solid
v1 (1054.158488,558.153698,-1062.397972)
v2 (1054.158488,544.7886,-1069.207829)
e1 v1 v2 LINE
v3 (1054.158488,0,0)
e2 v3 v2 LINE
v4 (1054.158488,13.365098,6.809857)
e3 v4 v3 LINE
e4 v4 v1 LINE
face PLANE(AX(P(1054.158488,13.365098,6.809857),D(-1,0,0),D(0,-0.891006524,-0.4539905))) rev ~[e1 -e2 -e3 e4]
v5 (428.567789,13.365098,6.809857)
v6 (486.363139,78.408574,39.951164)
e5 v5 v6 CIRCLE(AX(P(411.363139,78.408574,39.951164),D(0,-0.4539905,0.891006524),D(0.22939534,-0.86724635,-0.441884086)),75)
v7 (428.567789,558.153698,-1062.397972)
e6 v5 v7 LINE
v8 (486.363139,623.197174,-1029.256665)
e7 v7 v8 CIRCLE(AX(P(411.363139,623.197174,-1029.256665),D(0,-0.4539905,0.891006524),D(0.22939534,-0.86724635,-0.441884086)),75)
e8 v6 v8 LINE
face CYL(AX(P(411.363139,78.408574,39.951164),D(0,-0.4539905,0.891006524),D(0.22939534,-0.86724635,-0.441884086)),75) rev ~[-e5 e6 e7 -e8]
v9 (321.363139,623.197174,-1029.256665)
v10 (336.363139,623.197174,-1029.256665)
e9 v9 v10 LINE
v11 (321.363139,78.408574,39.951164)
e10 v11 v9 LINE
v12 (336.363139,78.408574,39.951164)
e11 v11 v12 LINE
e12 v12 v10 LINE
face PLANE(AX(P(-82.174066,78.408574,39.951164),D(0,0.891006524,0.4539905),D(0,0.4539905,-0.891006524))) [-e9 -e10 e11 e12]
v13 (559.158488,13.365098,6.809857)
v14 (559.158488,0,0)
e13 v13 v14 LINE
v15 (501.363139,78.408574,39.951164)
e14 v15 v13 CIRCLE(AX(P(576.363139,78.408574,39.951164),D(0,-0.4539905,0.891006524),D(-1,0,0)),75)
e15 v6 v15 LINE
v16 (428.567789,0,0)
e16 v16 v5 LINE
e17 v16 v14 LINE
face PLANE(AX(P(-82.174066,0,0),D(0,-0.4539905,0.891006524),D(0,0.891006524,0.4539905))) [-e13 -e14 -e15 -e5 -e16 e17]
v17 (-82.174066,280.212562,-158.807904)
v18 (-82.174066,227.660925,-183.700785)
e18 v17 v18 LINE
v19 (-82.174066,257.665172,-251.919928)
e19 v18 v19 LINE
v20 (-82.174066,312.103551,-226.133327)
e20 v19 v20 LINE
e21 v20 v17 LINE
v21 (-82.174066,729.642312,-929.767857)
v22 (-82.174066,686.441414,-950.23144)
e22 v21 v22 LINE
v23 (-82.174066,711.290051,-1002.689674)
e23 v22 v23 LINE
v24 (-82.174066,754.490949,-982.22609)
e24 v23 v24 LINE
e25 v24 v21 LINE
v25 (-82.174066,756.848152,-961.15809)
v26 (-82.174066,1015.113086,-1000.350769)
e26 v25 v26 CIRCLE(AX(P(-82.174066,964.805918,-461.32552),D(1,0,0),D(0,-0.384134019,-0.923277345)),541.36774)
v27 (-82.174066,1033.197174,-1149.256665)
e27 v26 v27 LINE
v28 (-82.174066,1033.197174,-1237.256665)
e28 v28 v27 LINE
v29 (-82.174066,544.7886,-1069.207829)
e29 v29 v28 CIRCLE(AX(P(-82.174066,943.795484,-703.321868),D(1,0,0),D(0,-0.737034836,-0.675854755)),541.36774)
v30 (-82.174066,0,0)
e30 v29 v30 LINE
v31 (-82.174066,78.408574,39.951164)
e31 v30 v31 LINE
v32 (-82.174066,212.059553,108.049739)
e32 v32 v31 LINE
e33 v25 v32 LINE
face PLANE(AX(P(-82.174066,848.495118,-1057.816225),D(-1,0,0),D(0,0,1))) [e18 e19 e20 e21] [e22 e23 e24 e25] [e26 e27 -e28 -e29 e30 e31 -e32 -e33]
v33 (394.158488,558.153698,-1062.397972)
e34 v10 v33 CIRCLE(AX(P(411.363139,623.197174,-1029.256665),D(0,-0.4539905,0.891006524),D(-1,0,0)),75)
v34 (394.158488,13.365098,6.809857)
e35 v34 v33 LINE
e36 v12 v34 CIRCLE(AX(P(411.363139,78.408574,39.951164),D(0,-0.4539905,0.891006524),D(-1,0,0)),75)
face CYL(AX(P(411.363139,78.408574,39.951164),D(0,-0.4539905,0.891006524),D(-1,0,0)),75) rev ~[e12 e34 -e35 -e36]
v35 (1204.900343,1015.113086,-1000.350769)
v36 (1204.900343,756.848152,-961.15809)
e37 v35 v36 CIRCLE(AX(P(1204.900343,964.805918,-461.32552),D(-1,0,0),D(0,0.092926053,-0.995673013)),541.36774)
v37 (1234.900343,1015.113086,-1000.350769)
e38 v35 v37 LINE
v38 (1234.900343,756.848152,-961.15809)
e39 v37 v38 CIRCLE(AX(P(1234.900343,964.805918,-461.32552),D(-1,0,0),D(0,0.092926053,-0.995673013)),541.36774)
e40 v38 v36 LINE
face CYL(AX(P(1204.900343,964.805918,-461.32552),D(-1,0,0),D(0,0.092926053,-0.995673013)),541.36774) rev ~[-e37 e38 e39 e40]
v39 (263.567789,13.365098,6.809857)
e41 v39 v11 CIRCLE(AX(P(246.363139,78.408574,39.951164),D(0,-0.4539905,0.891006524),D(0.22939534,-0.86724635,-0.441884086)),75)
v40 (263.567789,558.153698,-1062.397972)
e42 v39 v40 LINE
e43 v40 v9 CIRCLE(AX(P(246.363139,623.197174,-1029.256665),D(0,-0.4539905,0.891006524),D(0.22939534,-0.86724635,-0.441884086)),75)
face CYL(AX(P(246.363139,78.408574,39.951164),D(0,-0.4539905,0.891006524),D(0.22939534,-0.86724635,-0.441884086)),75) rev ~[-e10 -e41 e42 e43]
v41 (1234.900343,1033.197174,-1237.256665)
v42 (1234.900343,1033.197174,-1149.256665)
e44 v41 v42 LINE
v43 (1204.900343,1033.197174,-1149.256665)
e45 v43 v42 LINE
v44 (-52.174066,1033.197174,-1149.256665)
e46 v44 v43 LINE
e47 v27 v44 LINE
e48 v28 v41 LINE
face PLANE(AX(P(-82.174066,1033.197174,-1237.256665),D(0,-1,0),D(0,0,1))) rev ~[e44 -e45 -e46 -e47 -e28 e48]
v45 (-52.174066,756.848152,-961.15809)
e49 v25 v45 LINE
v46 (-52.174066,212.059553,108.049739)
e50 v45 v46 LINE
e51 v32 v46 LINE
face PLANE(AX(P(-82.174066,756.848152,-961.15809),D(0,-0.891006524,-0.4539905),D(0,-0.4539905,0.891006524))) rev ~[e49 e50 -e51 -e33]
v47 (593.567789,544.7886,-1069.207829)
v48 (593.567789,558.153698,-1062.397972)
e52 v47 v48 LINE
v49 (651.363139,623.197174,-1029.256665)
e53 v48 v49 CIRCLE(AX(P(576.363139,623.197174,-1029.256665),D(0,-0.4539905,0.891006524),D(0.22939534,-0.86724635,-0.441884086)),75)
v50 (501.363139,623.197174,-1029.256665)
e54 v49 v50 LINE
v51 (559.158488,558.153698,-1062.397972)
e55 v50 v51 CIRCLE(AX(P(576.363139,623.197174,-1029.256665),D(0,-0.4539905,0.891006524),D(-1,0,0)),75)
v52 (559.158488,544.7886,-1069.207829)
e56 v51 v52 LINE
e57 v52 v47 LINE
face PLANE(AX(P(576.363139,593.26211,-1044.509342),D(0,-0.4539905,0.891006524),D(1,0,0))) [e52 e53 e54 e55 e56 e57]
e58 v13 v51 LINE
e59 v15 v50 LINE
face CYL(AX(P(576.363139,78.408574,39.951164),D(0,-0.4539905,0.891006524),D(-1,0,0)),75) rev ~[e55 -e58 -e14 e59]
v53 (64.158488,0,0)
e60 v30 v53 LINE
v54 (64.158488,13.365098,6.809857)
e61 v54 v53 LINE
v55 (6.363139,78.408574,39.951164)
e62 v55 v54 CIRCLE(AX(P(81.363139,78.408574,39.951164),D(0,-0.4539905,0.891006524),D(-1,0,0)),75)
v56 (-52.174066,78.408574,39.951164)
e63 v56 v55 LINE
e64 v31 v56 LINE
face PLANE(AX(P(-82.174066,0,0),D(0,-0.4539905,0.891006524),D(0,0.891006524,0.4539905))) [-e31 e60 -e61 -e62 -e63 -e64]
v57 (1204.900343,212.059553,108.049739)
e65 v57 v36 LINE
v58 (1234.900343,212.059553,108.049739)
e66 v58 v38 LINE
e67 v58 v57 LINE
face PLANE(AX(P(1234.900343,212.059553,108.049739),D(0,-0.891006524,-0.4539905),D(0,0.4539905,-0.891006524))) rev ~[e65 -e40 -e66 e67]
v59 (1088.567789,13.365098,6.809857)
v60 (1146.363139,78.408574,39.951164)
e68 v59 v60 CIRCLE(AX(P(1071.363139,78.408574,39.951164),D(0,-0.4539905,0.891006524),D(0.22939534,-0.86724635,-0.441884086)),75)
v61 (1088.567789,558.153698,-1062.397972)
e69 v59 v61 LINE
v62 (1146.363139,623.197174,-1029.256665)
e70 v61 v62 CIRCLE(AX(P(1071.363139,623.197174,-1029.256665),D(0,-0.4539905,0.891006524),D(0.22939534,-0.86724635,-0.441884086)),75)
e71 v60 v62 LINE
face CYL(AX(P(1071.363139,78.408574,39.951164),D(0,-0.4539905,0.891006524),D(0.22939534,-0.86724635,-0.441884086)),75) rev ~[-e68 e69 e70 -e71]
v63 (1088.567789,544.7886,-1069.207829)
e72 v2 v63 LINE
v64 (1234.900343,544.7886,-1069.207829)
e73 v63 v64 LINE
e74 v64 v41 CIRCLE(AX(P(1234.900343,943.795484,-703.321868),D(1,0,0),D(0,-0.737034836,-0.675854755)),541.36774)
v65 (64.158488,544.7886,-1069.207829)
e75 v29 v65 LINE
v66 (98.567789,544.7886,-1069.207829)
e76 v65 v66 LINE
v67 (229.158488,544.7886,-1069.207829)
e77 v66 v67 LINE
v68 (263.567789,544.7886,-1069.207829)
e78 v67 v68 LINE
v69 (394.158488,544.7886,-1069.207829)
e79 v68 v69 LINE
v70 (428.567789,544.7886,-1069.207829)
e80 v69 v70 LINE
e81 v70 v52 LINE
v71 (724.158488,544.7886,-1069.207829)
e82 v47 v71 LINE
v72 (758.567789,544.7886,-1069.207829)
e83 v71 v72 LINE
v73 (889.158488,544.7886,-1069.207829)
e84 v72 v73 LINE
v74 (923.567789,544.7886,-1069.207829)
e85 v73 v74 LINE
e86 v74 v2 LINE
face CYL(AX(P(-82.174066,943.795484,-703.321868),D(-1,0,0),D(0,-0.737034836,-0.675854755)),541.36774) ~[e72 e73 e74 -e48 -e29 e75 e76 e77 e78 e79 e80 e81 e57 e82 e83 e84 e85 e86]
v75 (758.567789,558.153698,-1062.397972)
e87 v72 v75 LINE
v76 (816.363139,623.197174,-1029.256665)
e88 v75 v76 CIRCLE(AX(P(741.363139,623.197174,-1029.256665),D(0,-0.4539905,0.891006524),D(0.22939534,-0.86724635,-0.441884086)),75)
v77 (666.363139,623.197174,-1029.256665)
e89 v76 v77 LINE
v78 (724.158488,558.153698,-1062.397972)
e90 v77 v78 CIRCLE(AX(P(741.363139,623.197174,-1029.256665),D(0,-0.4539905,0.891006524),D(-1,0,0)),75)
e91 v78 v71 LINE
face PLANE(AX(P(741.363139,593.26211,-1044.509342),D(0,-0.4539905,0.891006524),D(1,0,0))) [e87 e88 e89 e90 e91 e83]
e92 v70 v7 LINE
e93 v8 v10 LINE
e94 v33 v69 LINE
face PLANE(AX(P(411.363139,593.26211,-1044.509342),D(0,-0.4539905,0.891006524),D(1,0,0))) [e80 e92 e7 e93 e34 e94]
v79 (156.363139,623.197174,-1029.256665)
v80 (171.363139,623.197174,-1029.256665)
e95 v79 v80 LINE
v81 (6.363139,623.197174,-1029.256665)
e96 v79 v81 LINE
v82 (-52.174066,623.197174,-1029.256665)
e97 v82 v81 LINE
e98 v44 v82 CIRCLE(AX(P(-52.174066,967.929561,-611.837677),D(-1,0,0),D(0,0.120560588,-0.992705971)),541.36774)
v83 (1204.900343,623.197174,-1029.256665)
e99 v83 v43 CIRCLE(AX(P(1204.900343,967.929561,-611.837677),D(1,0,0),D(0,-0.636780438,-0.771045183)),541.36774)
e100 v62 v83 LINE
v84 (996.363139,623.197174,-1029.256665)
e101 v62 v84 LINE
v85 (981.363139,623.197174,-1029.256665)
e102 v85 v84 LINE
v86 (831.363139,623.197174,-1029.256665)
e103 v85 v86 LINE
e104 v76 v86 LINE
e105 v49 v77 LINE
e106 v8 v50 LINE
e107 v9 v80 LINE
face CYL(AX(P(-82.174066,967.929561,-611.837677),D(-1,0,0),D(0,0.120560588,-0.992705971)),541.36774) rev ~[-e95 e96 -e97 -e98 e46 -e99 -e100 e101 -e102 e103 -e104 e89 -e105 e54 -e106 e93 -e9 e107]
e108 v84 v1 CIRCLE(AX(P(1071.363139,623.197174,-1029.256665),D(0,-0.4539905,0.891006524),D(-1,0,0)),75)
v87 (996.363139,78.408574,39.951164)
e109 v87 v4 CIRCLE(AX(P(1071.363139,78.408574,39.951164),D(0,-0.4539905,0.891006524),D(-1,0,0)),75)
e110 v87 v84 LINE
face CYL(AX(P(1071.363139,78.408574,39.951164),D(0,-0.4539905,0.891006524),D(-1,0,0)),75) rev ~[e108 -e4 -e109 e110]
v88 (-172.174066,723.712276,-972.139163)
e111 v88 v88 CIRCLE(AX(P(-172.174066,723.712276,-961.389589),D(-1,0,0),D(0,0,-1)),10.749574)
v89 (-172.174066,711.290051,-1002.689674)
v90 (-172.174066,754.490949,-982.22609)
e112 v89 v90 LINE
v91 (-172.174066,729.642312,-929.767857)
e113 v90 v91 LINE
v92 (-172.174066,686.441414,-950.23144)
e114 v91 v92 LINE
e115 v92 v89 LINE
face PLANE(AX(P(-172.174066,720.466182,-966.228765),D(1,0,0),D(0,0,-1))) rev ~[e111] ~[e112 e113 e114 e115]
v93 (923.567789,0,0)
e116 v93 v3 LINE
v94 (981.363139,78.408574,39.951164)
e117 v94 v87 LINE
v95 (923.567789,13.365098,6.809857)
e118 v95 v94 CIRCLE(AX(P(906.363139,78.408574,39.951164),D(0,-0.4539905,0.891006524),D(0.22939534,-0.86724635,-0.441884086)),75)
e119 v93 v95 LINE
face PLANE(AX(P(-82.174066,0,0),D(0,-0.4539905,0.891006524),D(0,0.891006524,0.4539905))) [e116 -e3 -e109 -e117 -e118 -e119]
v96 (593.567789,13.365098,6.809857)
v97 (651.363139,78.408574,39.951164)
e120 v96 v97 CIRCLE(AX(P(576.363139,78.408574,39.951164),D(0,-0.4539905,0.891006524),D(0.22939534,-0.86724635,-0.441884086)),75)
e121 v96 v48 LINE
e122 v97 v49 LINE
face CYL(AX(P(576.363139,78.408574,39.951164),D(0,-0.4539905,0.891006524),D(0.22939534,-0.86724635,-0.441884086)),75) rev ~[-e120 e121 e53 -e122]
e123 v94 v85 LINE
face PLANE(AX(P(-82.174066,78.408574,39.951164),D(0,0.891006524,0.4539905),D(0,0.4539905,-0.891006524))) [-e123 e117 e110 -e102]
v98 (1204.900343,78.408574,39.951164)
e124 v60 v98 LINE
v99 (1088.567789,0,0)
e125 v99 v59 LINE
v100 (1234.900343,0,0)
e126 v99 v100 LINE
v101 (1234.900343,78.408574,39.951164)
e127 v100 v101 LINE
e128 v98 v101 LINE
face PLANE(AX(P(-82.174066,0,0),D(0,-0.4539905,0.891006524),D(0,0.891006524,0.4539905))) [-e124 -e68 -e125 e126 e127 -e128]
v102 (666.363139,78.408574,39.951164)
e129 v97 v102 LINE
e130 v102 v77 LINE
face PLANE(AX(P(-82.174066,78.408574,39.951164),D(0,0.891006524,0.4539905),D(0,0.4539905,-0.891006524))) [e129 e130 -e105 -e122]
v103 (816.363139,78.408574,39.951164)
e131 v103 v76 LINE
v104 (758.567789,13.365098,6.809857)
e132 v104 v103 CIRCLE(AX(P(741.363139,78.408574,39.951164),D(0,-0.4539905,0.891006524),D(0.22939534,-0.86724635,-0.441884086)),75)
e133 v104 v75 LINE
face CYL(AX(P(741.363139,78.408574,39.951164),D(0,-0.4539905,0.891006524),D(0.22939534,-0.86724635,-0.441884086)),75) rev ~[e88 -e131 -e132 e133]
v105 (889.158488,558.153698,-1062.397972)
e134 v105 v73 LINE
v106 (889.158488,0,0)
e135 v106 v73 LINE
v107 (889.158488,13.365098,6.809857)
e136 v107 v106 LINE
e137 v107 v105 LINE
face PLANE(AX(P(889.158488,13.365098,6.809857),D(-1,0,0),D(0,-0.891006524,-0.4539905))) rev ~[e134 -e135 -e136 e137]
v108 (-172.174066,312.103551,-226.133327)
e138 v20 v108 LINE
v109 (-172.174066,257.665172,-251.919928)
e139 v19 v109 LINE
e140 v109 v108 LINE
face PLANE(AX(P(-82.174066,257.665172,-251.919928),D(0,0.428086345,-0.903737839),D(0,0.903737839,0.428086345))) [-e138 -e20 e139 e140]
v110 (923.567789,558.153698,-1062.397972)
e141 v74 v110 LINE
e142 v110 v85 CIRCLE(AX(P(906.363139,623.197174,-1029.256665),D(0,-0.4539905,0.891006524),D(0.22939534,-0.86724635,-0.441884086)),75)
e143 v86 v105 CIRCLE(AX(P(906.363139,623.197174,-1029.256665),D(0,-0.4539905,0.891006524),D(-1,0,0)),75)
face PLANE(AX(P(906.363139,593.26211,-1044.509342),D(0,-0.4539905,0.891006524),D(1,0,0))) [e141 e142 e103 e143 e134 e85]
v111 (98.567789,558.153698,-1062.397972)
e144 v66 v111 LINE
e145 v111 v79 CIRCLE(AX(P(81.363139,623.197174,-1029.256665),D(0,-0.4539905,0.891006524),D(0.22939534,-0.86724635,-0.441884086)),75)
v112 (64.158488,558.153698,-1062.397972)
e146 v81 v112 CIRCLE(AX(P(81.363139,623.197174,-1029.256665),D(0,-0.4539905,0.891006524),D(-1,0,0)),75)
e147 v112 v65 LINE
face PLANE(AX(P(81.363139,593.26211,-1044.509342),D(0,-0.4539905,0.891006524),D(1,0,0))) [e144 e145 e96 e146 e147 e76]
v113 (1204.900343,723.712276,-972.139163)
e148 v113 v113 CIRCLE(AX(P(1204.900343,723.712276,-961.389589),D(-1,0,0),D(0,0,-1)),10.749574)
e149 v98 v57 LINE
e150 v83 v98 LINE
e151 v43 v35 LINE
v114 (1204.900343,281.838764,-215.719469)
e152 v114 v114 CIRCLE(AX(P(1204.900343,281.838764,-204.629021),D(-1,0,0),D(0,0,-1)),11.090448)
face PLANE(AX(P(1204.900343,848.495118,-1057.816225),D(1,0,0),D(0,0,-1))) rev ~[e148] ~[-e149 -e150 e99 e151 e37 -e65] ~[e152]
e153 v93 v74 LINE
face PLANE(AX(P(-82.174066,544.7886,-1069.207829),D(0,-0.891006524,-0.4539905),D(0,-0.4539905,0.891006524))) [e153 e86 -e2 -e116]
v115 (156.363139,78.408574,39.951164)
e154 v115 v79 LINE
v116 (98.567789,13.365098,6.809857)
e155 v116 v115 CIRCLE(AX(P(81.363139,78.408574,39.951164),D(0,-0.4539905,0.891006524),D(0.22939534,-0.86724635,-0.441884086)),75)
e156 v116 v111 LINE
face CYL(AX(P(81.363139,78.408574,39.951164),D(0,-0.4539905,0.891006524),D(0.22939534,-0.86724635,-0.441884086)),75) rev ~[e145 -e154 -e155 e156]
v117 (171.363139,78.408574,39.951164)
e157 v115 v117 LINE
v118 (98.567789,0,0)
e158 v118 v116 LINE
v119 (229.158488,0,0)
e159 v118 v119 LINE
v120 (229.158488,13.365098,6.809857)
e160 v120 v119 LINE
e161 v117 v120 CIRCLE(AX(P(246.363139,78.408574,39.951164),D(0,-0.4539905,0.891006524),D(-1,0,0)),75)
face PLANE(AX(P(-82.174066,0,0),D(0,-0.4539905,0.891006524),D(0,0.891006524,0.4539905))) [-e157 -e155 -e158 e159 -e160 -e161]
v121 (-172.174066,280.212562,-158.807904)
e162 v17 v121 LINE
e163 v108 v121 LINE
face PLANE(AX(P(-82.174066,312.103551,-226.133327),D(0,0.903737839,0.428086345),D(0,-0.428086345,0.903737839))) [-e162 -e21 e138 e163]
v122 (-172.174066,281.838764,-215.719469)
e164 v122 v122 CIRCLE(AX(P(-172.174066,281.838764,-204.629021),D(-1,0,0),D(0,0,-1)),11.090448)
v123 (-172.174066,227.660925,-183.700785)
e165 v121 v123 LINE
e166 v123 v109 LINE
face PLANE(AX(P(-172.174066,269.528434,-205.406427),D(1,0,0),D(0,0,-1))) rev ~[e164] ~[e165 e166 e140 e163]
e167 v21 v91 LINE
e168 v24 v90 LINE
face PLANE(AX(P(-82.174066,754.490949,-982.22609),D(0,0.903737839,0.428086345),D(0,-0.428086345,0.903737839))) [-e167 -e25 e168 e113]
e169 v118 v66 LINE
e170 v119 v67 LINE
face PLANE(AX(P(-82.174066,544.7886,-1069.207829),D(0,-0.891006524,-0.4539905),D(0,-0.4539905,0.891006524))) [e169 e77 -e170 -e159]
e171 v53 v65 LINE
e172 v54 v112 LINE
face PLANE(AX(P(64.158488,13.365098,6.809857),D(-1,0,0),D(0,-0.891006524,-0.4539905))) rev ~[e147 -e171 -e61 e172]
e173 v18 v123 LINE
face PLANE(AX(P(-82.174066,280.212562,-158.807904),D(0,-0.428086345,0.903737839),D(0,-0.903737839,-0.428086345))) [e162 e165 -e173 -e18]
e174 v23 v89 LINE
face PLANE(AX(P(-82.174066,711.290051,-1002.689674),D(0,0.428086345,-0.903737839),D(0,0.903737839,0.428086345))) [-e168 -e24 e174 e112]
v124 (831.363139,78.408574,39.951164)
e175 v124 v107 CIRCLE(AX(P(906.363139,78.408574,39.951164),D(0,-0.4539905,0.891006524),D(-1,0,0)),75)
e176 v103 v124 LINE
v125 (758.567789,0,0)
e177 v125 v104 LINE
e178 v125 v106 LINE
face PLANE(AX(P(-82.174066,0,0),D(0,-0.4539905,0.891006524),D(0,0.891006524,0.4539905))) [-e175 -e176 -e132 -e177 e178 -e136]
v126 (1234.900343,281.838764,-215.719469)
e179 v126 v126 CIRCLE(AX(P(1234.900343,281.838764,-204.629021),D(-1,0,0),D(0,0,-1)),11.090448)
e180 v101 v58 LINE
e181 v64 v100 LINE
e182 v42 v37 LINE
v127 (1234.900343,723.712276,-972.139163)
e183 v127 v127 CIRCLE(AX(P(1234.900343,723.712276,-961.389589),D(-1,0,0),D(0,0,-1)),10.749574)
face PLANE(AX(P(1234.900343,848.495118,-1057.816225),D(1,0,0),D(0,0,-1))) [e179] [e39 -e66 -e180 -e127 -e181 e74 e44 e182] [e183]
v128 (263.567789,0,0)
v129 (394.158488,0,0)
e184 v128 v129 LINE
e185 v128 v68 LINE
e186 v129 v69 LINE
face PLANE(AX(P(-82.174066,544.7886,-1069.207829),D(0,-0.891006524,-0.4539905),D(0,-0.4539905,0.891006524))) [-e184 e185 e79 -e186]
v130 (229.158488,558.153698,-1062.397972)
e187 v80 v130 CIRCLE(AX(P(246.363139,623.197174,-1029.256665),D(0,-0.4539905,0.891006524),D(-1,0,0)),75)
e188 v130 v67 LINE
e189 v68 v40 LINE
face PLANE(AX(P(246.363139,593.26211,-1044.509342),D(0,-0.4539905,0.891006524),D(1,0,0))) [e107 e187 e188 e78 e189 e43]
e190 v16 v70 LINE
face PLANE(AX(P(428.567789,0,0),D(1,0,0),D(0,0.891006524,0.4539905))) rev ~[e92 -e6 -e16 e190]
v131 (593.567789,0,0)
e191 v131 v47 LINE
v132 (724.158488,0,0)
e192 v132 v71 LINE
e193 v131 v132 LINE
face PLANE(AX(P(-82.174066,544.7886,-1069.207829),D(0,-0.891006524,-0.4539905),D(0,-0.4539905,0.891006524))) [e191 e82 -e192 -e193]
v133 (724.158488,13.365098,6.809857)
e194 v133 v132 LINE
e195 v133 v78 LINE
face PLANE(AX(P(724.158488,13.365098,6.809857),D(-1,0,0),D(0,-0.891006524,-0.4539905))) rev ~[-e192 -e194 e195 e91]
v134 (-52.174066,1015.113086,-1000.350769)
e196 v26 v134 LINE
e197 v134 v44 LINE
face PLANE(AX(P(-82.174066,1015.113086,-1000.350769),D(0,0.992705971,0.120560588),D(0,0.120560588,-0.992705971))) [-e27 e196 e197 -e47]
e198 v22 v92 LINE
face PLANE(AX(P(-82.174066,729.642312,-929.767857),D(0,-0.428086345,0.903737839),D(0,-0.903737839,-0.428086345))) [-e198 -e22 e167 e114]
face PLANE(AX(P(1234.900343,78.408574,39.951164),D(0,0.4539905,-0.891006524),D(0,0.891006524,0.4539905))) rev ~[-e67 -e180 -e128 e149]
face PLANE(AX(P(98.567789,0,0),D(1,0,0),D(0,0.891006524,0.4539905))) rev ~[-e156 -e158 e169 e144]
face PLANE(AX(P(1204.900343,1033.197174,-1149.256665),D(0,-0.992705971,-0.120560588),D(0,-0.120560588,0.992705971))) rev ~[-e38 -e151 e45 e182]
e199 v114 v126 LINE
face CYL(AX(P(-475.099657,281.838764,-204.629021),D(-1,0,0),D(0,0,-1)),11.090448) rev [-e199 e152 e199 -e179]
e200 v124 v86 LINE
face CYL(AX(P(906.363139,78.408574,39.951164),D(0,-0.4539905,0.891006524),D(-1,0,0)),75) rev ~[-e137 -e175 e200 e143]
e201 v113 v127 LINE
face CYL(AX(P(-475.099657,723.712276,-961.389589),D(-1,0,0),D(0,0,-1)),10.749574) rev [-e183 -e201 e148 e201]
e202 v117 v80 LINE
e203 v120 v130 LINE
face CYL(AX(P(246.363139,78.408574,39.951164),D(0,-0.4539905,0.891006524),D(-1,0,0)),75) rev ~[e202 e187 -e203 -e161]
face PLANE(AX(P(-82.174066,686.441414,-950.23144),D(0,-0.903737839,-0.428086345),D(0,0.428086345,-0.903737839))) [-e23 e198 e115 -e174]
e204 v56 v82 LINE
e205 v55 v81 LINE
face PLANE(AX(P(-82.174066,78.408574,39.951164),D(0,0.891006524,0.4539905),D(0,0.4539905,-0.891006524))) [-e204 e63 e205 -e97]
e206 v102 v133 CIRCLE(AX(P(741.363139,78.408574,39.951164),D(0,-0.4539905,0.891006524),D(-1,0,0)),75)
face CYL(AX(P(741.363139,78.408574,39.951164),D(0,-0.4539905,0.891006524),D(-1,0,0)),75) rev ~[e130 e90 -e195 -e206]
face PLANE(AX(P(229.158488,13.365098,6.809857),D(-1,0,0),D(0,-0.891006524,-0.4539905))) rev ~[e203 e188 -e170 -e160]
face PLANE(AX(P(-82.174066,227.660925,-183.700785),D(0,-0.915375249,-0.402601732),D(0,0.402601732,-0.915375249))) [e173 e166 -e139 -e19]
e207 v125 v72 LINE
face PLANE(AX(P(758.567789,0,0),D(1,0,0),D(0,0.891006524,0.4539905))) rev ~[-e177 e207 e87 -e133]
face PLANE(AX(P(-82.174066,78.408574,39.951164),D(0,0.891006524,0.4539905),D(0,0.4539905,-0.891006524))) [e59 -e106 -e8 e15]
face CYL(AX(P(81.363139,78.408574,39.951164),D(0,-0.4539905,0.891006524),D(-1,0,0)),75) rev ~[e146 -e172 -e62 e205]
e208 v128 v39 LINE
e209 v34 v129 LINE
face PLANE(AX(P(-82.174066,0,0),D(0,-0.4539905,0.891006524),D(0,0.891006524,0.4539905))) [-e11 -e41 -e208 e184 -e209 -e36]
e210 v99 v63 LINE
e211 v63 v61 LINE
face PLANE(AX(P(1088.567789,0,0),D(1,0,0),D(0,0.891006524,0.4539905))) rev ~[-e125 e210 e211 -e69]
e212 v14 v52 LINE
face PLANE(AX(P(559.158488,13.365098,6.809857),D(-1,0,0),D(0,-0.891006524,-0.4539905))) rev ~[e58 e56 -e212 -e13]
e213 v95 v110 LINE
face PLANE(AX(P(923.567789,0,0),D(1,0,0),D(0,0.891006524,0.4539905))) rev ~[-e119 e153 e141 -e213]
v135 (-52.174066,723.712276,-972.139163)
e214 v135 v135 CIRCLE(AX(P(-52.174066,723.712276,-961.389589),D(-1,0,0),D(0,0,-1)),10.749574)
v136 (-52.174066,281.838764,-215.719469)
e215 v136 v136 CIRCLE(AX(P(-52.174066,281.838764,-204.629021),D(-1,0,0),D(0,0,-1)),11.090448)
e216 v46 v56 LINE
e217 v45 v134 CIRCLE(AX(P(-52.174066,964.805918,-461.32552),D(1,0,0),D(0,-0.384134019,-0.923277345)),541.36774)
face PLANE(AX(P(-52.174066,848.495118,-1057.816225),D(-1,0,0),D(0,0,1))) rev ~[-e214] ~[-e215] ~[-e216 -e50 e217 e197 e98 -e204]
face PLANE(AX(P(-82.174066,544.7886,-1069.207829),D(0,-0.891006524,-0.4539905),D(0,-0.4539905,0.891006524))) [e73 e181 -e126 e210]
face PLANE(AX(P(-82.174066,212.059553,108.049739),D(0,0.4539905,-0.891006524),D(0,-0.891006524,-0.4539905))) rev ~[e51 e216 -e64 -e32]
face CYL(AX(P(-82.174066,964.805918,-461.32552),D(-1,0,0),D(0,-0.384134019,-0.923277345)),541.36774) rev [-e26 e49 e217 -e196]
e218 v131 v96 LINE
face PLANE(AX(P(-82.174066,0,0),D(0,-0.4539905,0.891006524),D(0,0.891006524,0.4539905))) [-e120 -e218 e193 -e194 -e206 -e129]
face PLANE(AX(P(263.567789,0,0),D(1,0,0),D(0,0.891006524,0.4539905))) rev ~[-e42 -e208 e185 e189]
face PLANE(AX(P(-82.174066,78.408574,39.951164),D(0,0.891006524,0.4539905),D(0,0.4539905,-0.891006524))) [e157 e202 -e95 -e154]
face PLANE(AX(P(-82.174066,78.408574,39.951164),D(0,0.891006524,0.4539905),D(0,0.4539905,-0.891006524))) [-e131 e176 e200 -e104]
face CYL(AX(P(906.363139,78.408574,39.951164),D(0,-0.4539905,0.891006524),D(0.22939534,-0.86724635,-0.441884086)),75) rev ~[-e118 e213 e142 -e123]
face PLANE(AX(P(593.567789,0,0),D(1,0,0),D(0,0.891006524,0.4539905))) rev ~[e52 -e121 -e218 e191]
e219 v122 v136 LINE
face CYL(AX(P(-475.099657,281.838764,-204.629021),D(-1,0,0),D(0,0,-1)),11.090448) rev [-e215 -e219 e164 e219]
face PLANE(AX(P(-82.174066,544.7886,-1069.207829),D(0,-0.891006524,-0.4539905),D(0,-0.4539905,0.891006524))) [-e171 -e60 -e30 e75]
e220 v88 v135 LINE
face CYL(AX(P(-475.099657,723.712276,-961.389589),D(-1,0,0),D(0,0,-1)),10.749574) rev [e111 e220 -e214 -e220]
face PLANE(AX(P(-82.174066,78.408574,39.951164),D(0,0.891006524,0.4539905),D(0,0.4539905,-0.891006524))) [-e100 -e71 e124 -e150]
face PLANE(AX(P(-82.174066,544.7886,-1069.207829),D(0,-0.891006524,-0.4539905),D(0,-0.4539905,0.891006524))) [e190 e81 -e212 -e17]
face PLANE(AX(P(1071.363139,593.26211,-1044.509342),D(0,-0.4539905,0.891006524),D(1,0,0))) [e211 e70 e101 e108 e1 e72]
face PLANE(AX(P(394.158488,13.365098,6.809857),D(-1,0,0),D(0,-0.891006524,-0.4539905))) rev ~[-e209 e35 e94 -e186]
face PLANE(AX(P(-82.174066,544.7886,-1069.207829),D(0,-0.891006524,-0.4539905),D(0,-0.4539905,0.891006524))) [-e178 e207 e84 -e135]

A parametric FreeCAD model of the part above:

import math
import FreeCAD as App
import Part
import Sketcher
Q = App.Units.Quantity

doc = App.newDocument("Part")
body = doc.addObject("PartDesign::Body", "Body")

# Sketch on YZ plane
sketch1 = body.newObject("Sketcher::SketchObject", "Sketch")
sketch1.AttachmentSupport = (doc.getObject("YZ_Plane"), [""])
sketch1.MapMode = "FlatFace"
sketch1.addGeometry([
    Part.LineSegment(App.Vector(0, 0, 0), App.Vector(545, -1069, 0)),  # 0
    Part.ArcOfCircle(Part.Circle(App.Vector(944, -703, 0), App.Vector(0, 0, 1), 541), math.radians(-137), math.radians(-80)),  # 1
    Part.LineSegment(App.Vector(1033, -1237, 0), App.Vector(1033, -1149, 0)),  # 2
    Part.ArcOfCircle(Part.Circle(App.Vector(968, -612, 0), App.Vector(0, 0, 1), 541), math.radians(-130), math.radians(-83)),  # 3
    Part.LineSegment(App.Vector(623, -1029, 0), App.Vector(78, 40, 0)),  # 4
    Part.LineSegment(App.Vector(78, 40, 0), App.Vector(0, 0, 0)),  # 5
], False)
sketch1.addConstraint([
    Sketcher.Constraint("Coincident", 0, 2, 1, 1),
    Sketcher.Constraint("Coincident", 1, 2, 2, 1),
    Sketcher.Constraint("Coincident", 2, 2, 3, 2),
    Sketcher.Constraint("Coincident", 3, 1, 4, 1),
    Sketcher.Constraint("Coincident", 4, 2, 5, 1),
    Sketcher.Constraint("Coincident", 5, 2, 0, 1),
    Sketcher.Constraint("Vertical", 2),
    Sketcher.Constraint("Coincident", 5, 2, -1, 1),
    Sketcher.Constraint("Equal", 1, 3),
    Sketcher.Constraint("Parallel", 0, 4),
    Sketcher.Constraint("Perpendicular", 4, 5),
    Sketcher.Constraint("Equal", 0, 4),
    Sketcher.Constraint("DistanceY", 2, 1, 2, 2, 88.0),
    Sketcher.Constraint("Angle", 0, Q("-63 deg")),
    Sketcher.Constraint("Distance", 0, 1200.0),
    Sketcher.Constraint("Distance", 5, 88.0),
    Sketcher.Constraint("Radius", 1, 541.36774),
    Sketcher.Constraint("DistanceX", 4, 2, 2, 2, 954.7886),
    Sketcher.Constraint("DistanceX", -1, 1, 3, 3, 967.929561),
])
pad1 = body.newObject("PartDesign::Pad", "Pad")
pad1.Profile = sketch1
pad1.Type = "TwoLengths"
pad1.Length = 1234.900343
pad1.Length2 = 82.174066

# Sketch on an angled plane
sketch2 = body.newObject("Sketcher::SketchObject", "Sketch001")
sketch2.Placement = App.Placement(App.Vector(0, 0, 0), App.Rotation(App.Vector(1, 0, 0), App.Vector(0, 0.891006524, 0.4539905), App.Vector(0, -0.4539905, 0.891006524), "ZXY"))
sketch2.addGeometry([
    Part.ArcOfCircle(Part.Circle(App.Vector(81, 88, 0), App.Vector(0, 0, 1), 75), math.radians(-77), math.radians(0)),  # 0
    Part.LineSegment(App.Vector(156, 88, 0), App.Vector(6, 88, 0)),  # 1
    Part.ArcOfCircle(Part.Circle(App.Vector(81, 88, 0), App.Vector(0, 0, 1), 75), math.radians(-180), math.radians(-103)),  # 2
    Part.LineSegment(App.Vector(64, 15, 0), App.Vector(64, 0, 0)),  # 3
    Part.LineSegment(App.Vector(64, 0, 0), App.Vector(99, 0, 0)),  # 4
    Part.LineSegment(App.Vector(99, 0, 0), App.Vector(99, 15, 0)),  # 5
    Part.ArcOfCircle(Part.Circle(App.Vector(246, 88, 0), App.Vector(0, 0, 1), 75), math.radians(-77), math.radians(0)),  # 6
    Part.LineSegment(App.Vector(321, 88, 0), App.Vector(171, 88, 0)),  # 7
    Part.ArcOfCircle(Part.Circle(App.Vector(246, 88, 0), App.Vector(0, 0, 1), 75), math.radians(-180), math.radians(-103)),  # 8
    Part.LineSegment(App.Vector(229, 15, 0), App.Vector(229, 0, 0)),  # 9
    Part.LineSegment(App.Vector(229, 0, 0), App.Vector(264, 0, 0)),  # 10
    Part.LineSegment(App.Vector(264, 0, 0), App.Vector(264, 15, 0)),  # 11
    Part.ArcOfCircle(Part.Circle(App.Vector(411, 88, 0), App.Vector(0, 0, 1), 75), math.radians(-77), math.radians(0)),  # 12
    Part.LineSegment(App.Vector(486, 88, 0), App.Vector(336, 88, 0)),  # 13
    Part.ArcOfCircle(Part.Circle(App.Vector(411, 88, 0), App.Vector(0, 0, 1), 75), math.radians(-180), math.radians(-103)),  # 14
    Part.LineSegment(App.Vector(394, 15, 0), App.Vector(394, 0, 0)),  # 15
    Part.LineSegment(App.Vector(394, 0, 0), App.Vector(429, 0, 0)),  # 16
    Part.LineSegment(App.Vector(429, 0, 0), App.Vector(429, 15, 0)),  # 17
    Part.LineSegment(App.Vector(651, 88, 0), App.Vector(501, 88, 0)),  # 18
    Part.ArcOfCircle(Part.Circle(App.Vector(576, 88, 0), App.Vector(0, 0, 1), 75), math.radians(-180), math.radians(-103)),  # 19
    Part.LineSegment(App.Vector(559, 15, 0), App.Vector(559, 0, 0)),  # 20
    Part.LineSegment(App.Vector(559, 0, 0), App.Vector(594, 0, 0)),  # 21
    Part.LineSegment(App.Vector(594, 0, 0), App.Vector(594, 15, 0)),  # 22
    Part.ArcOfCircle(Part.Circle(App.Vector(576, 88, 0), App.Vector(0, 0, 1), 75), math.radians(-77), math.radians(0)),  # 23
    Part.LineSegment(App.Vector(816, 88, 0), App.Vector(666, 88, 0)),  # 24
    Part.ArcOfCircle(Part.Circle(App.Vector(741, 88, 0), App.Vector(0, 0, 1), 75), math.radians(-180), math.radians(-103)),  # 25
    Part.LineSegment(App.Vector(724, 15, 0), App.Vector(724, 0, 0)),  # 26
    Part.LineSegment(App.Vector(724, 0, 0), App.Vector(759, 0, 0)),  # 27
    Part.LineSegment(App.Vector(759, 0, 0), App.Vector(759, 15, 0)),  # 28
    Part.ArcOfCircle(Part.Circle(App.Vector(741, 88, 0), App.Vector(0, 0, 1), 75), math.radians(-77), math.radians(0)),  # 29
    Part.LineSegment(App.Vector(981, 88, 0), App.Vector(831, 88, 0)),  # 30
    Part.ArcOfCircle(Part.Circle(App.Vector(906, 88, 0), App.Vector(0, 0, 1), 75), math.radians(-180), math.radians(-103)),  # 31
    Part.LineSegment(App.Vector(889, 15, 0), App.Vector(889, 0, 0)),  # 32
    Part.LineSegment(App.Vector(889, 0, 0), App.Vector(924, 0, 0)),  # 33
    Part.LineSegment(App.Vector(924, 0, 0), App.Vector(924, 15, 0)),  # 34
    Part.ArcOfCircle(Part.Circle(App.Vector(906, 88, 0), App.Vector(0, 0, 1), 75), math.radians(-77), math.radians(0)),  # 35
    Part.LineSegment(App.Vector(1146, 88, 0), App.Vector(996, 88, 0)),  # 36
    Part.ArcOfCircle(Part.Circle(App.Vector(1071, 88, 0), App.Vector(0, 0, 1), 75), math.radians(-180), math.radians(-103)),  # 37
    Part.LineSegment(App.Vector(1054, 15, 0), App.Vector(1054, 0, 0)),  # 38
    Part.LineSegment(App.Vector(1054, 0, 0), App.Vector(1089, 0, 0)),  # 39
    Part.LineSegment(App.Vector(1089, 0, 0), App.Vector(1089, 15, 0)),  # 40
    Part.ArcOfCircle(Part.Circle(App.Vector(1071, 88, 0), App.Vector(0, 0, 1), 75), math.radians(-77), math.radians(0)),  # 41
], False)
sketch2.addConstraint([
    Sketcher.Constraint("Coincident", 0, 2, 1, 1),
    Sketcher.Constraint("Coincident", 1, 2, 2, 1),
    Sketcher.Constraint("Coincident", 2, 2, 3, 1),
    Sketcher.Constraint("Coincident", 3, 2, 4, 1),
    Sketcher.Constraint("Coincident", 4, 2, 5, 1),
    Sketcher.Constraint("Coincident", 5, 2, 0, 1),
    Sketcher.Constraint("Coincident", 6, 2, 7, 1),
    Sketcher.Constraint("Coincident", 7, 2, 8, 1),
    Sketcher.Constraint("Coincident", 8, 2, 9, 1),
    Sketcher.Constraint("Coincident", 9, 2, 10, 1),
    Sketcher.Constraint("Coincident", 10, 2, 11, 1),
    Sketcher.Constraint("Coincident", 11, 2, 6, 1),
    Sketcher.Constraint("Coincident", 12, 2, 13, 1),
    Sketcher.Constraint("Coincident", 13, 2, 14, 1),
    Sketcher.Constraint("Coincident", 14, 2, 15, 1),
    Sketcher.Constraint("Coincident", 15, 2, 16, 1),
    Sketcher.Constraint("Coincident", 16, 2, 17, 1),
    Sketcher.Constraint("Coincident", 17, 2, 12, 1),
    Sketcher.Constraint("Coincident", 18, 2, 19, 1),
    Sketcher.Constraint("Coincident", 19, 2, 20, 1),
    Sketcher.Constraint("Coincident", 20, 2, 21, 1),
    Sketcher.Constraint("Coincident", 21, 2, 22, 1),
    Sketcher.Constraint("Coincident", 22, 2, 23, 1),
    Sketcher.Constraint("Coincident", 23, 2, 18, 1),
    Sketcher.Constraint("Coincident", 24, 2, 25, 1),
    Sketcher.Constraint("Coincident", 25, 2, 26, 1),
    Sketcher.Constraint("Coincident", 26, 2, 27, 1),
    Sketcher.Constraint("Coincident", 27, 2, 28, 1),
    Sketcher.Constraint("Coincident", 28, 2, 29, 1),
    Sketcher.Constraint("Coincident", 29, 2, 24, 1),
    Sketcher.Constraint("Coincident", 30, 2, 31, 1),
    Sketcher.Constraint("Coincident", 31, 2, 32, 1),
    Sketcher.Constraint("Coincident", 32, 2, 33, 1),
    Sketcher.Constraint("Coincident", 33, 2, 34, 1),
    Sketcher.Constraint("Coincident", 34, 2, 35, 1),
    Sketcher.Constraint("Coincident", 35, 2, 30, 1),
    Sketcher.Constraint("Coincident", 36, 2, 37, 1),
    Sketcher.Constraint("Coincident", 37, 2, 38, 1),
    Sketcher.Constraint("Coincident", 38, 2, 39, 1),
    Sketcher.Constraint("Coincident", 39, 2, 40, 1),
    Sketcher.Constraint("Coincident", 40, 2, 41, 1),
    Sketcher.Constraint("Coincident", 41, 2, 36, 1),
    Sketcher.Constraint("Horizontal", 1),
    Sketcher.Constraint("Vertical", 3),
    Sketcher.Constraint("Horizontal", 4),
    Sketcher.Constraint("Vertical", 5),
    Sketcher.Constraint("Horizontal", 7),
    Sketcher.Constraint("Vertical", 9),
    Sketcher.Constraint("Horizontal", 10),
    Sketcher.Constraint("Vertical", 11),
    Sketcher.Constraint("Horizontal", 13),
    Sketcher.Constraint("Vertical", 15),
    Sketcher.Constraint("Horizontal", 16),
    Sketcher.Constraint("Vertical", 17),
    Sketcher.Constraint("Horizontal", 18),
    Sketcher.Constraint("Vertical", 20),
    Sketcher.Constraint("Horizontal", 21),
    Sketcher.Constraint("Vertical", 22),
    Sketcher.Constraint("Horizontal", 24),
    Sketcher.Constraint("Vertical", 26),
    Sketcher.Constraint("Horizontal", 27),
    Sketcher.Constraint("Vertical", 28),
    Sketcher.Constraint("Horizontal", 30),
    Sketcher.Constraint("Vertical", 32),
    Sketcher.Constraint("Horizontal", 33),
    Sketcher.Constraint("Vertical", 34),
    Sketcher.Constraint("Horizontal", 36),
    Sketcher.Constraint("Vertical", 38),
    Sketcher.Constraint("Horizontal", 39),
    Sketcher.Constraint("Vertical", 40),
    Sketcher.Constraint("Coincident", 2, 3, 0, 3),
    Sketcher.Constraint("Coincident", 8, 3, 6, 3),
    Sketcher.Constraint("Coincident", 14, 3, 12, 3),
    Sketcher.Constraint("Coincident", 23, 3, 19, 3),
    Sketcher.Constraint("Coincident", 29, 3, 25, 3),
    Sketcher.Constraint("Coincident", 35, 3, 31, 3),
    Sketcher.Constraint("Coincident", 41, 3, 37, 3),
    Sketcher.Constraint("Equal", 0, 2),
    Sketcher.Constraint("Equal", 2, 6),
    Sketcher.Constraint("Equal", 6, 8),
    Sketcher.Constraint("Equal", 8, 12),
    Sketcher.Constraint("Equal", 12, 14),
    Sketcher.Constraint("Equal", 14, 19),
    Sketcher.Constraint("Equal", 19, 23),
    Sketcher.Constraint("Equal", 23, 25),
    Sketcher.Constraint("Equal", 25, 29),
    Sketcher.Constraint("Equal", 29, 31),
    Sketcher.Constraint("Equal", 31, 35),
    Sketcher.Constraint("Equal", 35, 37),
    Sketcher.Constraint("Equal", 37, 41),
    Sketcher.Constraint("PointOnObject", 3, 2, -1),
    Sketcher.Constraint("PointOnObject", 9, 2, -1),
    Sketcher.Constraint("PointOnObject", 15, 2, -1),
    Sketcher.Constraint("PointOnObject", 20, 2, -1),
    Sketcher.Constraint("PointOnObject", 26, 2, -1),
    Sketcher.Constraint("PointOnObject", 32, 2, -1),
    Sketcher.Constraint("PointOnObject", 38, 2, -1),
    Sketcher.Constraint("Horizontal", 2, 3, 6, 3),
    Sketcher.Constraint("Horizontal", 8, 3, 12, 3),
    Sketcher.Constraint("Horizontal", 14, 3, 19, 3),
    Sketcher.Constraint("Horizontal", 23, 3, 25, 3),
    Sketcher.Constraint("Horizontal", 29, 3, 31, 3),
    Sketcher.Constraint("Horizontal", 35, 3, 37, 3),
    Sketcher.Constraint("Horizontal", 41, 3, 0, 2),
    Sketcher.Constraint("Horizontal", 2, 2, 5, 2),
    Sketcher.Constraint("Horizontal", 1, 2, 6, 2),
    Sketcher.Constraint("Horizontal", 5, 2, 8, 2),
    Sketcher.Constraint("Horizontal", 8, 2, 11, 2),
    Sketcher.Constraint("Horizontal", 7, 2, 12, 2),
    Sketcher.Constraint("Horizontal", 11, 2, 14, 2),
    Sketcher.Constraint("Horizontal", 14, 2, 17, 2),
    Sketcher.Constraint("Horizontal", 13, 2, 18, 2),
    Sketcher.Constraint("Horizontal", 17, 2, 19, 2),
    Sketcher.Constraint("Horizontal", 19, 2, 22, 2),
    Sketcher.Constraint("Horizontal", 23, 2, 24, 2),
    Sketcher.Constraint("Horizontal", 22, 2, 25, 2),
    Sketcher.Constraint("Horizontal", 25, 2, 28, 2),
    Sketcher.Constraint("Horizontal", 29, 2, 30, 2),
    Sketcher.Constraint("Horizontal", 28, 2, 31, 2),
    Sketcher.Constraint("Horizontal", 31, 2, 34, 2),
    Sketcher.Constraint("Horizontal", 35, 2, 36, 2),
    Sketcher.Constraint("Horizontal", 34, 2, 37, 2),
    Sketcher.Constraint("Horizontal", 37, 2, 40, 2),
    Sketcher.Constraint("Radius", 0, 75.0),
    Sketcher.Constraint("DistanceY", 3, 2, 3, 1, 15.0),
    Sketcher.Constraint("DistanceY", -1, 1, 0, 3, 88.0),
    Sketcher.Constraint("DistanceX", 2, 3, 6, 3, 165.0),
    Sketcher.Constraint("DistanceX", 8, 3, 12, 3, 165.0),
    Sketcher.Constraint("DistanceX", 14, 3, 19, 3, 165.0),
    Sketcher.Constraint("DistanceX", 19, 3, 25, 3, 165.0),
    Sketcher.Constraint("DistanceX", 25, 3, 31, 3, 165.0),
    Sketcher.Constraint("DistanceX", 31, 3, 37, 3, 165.0),
    Sketcher.Constraint("DistanceX", -1, 1, 0, 3, 81.363139),
])
pocket1 = body.newObject("PartDesign::Pocket", "Pocket")
pocket1.Profile = sketch2
pocket1.Length = 1200

# Sketch on YZ plane
sketch3 = body.newObject("Sketcher::SketchObject", "Sketch002")
sketch3.AttachmentSupport = (doc.getObject("YZ_Plane"), [""])
sketch3.MapMode = "FlatFace"
sketch3.AttachmentOffset = App.Placement(App.Vector(0, 0, 1234.900343), App.Rotation())
sketch3.addGeometry([
    Part.LineSegment(App.Vector(212, 108, 0), App.Vector(78, 40, 0)),
    Part.LineSegment(App.Vector(78, 40, 0), App.Vector(623, -1029, 0)),
    Part.LineSegment(App.Vector(623, -1029, 0), App.Vector(757, -961, 0)),
    Part.LineSegment(App.Vector(757, -961, 0), App.Vector(212, 108, 0)),
], False)
sketch3.addConstraint([
    Sketcher.Constraint("Coincident", 0, 2, 1, 1),
    Sketcher.Constraint("Coincident", 1, 2, 2, 1),
    Sketcher.Constraint("Coincident", 2, 2, 3, 1),
    Sketcher.Constraint("Coincident", 3, 2, 0, 1),
    Sketcher.Constraint("Perpendicular", 0, 1),
    Sketcher.Constraint("Perpendicular", 1, 2),
    Sketcher.Constraint("Perpendicular", 2, 3),
    Sketcher.Constraint("Angle", 0, Q("-153 deg")),
    Sketcher.Constraint("Distance", 0, 150.0),
    Sketcher.Constraint("Distance", 1, 1200.0),
    Sketcher.Constraint("DistanceY", 2, 2, -1, 1, 961.15809),
    Sketcher.Constraint("DistanceX", -1, 1, 0, 2, 78.408574),
])
pad2 = body.newObject("PartDesign::Pad", "Pad001")
pad2.Profile = sketch3
pad2.Length = 30
pad2.Reversed = True

# Sketch on YZ plane
sketch4 = body.newObject("Sketcher::SketchObject", "Sketch003")
sketch4.AttachmentSupport = (doc.getObject("YZ_Plane"), [""])
sketch4.MapMode = "FlatFace"
sketch4.AttachmentOffset = App.Placement(App.Vector(0, 0, -82.174066), App.Rotation())
sketch4.addGeometry([
    Part.LineSegment(App.Vector(757, -961, 0), App.Vector(623, -1029, 0)),
    Part.LineSegment(App.Vector(623, -1029, 0), App.Vector(78, 40, 0)),
    Part.LineSegment(App.Vector(78, 40, 0), App.Vector(212, 108, 0)),
    Part.LineSegment(App.Vector(212, 108, 0), App.Vector(757, -961, 0)),
], False)
sketch4.addConstraint([
    Sketcher.Constraint("Coincident", 0, 2, 1, 1),
    Sketcher.Constraint("Coincident", 1, 2, 2, 1),
    Sketcher.Constraint("Coincident", 2, 2, 3, 1),
    Sketcher.Constraint("Coincident", 3, 2, 0, 1),
    Sketcher.Constraint("Perpendicular", 0, 1),
    Sketcher.Constraint("Perpendicular", 1, 2),
    Sketcher.Constraint("Perpendicular", 2, 3),
    Sketcher.Constraint("Angle", 0, Q("-153 deg")),
    Sketcher.Constraint("Distance", 0, 150.0),
    Sketcher.Constraint("Distance", 1, 1200.0),
    Sketcher.Constraint("DistanceY", -1, 1, 2, 2, 108.049739),
    Sketcher.Constraint("DistanceX", -1, 1, 0, 2, 623.197174),
])
pad3 = body.newObject("PartDesign::Pad", "Pad002")
pad3.Profile = sketch4
pad3.Length = 30

# Sketch on YZ plane
sketch5 = body.newObject("Sketcher::SketchObject", "Sketch004")
sketch5.AttachmentSupport = (doc.getObject("YZ_Plane"), [""])
sketch5.MapMode = "FlatFace"
sketch5.AttachmentOffset = App.Placement(App.Vector(0, 0, 1204.900343), App.Rotation())
sketch5.addGeometry([
    Part.LineSegment(App.Vector(1033, -1149, 0), App.Vector(1015, -1000, 0)),
    Part.ArcOfCircle(Part.Circle(App.Vector(965, -461, 0), App.Vector(0, 0, 1), 541), math.radians(-113), math.radians(-85)),
    Part.LineSegment(App.Vector(757, -961, 0), App.Vector(623, -1029, 0)),
    Part.ArcOfCircle(Part.Circle(App.Vector(968, -612, 0), App.Vector(0, 0, 1), 541), math.radians(-130), math.radians(-83)),
], False)
sketch5.addConstraint([
    Sketcher.Constraint("Coincident", 0, 2, 1, 2),
    Sketcher.Constraint("Coincident", 1, 1, 2, 1),
    Sketcher.Constraint("Coincident", 2, 2, 3, 1),
    Sketcher.Constraint("Coincident", 3, 2, 0, 1),
    Sketcher.Constraint("Equal", 1, 3),
    Sketcher.Constraint("Equal", 0, 2),
    Sketcher.Constraint("Angle", 2, Q("-153 deg")),
    Sketcher.Constraint("Distance", 0, 150.0),
    Sketcher.Constraint("DistanceX", 2, 2, 3, 2, 410.0),
    Sketcher.Constraint("DistanceY", 3, 2, 2, 2, 120.0),
    Sketcher.Constraint("Radius", 1, 541.36774),
    Sketcher.Constraint("DistanceX", -1, 1, 1, 3, 964.805918),
    Sketcher.Constraint("DistanceY", 1, 3, -1, 1, 461.32552),
    Sketcher.Constraint("DistanceX", -1, 1, 3, 3, 967.929561),
])
pad4 = body.newObject("PartDesign::Pad", "Pad003")
pad4.Profile = sketch5
pad4.Length = 30

# Sketch on YZ plane
sketch6 = body.newObject("Sketcher::SketchObject", "Sketch005")
sketch6.AttachmentSupport = (doc.getObject("YZ_Plane"), [""])
sketch6.MapMode = "FlatFace"
sketch6.AttachmentOffset = App.Placement(App.Vector(0, 0, -82.174066), App.Rotation())
sketch6.addGeometry([
    Part.LineSegment(App.Vector(623, -1029, 0), App.Vector(757, -961, 0)),
    Part.ArcOfCircle(Part.Circle(App.Vector(965, -461, 0), App.Vector(0, 0, 1), 541), math.radians(-113), math.radians(-85)),
    Part.LineSegment(App.Vector(1015, -1000, 0), App.Vector(1033, -1149, 0)),
    Part.ArcOfCircle(Part.Circle(App.Vector(968, -612, 0), App.Vector(0, 0, 1), 541), math.radians(-130), math.radians(-83)),
], False)
sketch6.addConstraint([
    Sketcher.Constraint("Coincident", 0, 2, 1, 1),
    Sketcher.Constraint("Coincident", 1, 2, 2, 1),
    Sketcher.Constraint("Coincident", 2, 2, 3, 2),
    Sketcher.Constraint("Coincident", 3, 1, 0, 1),
    Sketcher.Constraint("Equal", 1, 3),
    Sketcher.Constraint("Equal", 0, 2),
    Sketcher.Constraint("Angle", 0, Q("27 deg")),
    Sketcher.Constraint("Distance", 0, 150.0),
    Sketcher.Constraint("DistanceX", 3, 1, 2, 2, 410.0),
    Sketcher.Constraint("Radius", 1, 541.36774),
    Sketcher.Constraint("DistanceX", -1, 1, 1, 3, 964.805918),
    Sketcher.Constraint("DistanceY", 1, 3, -1, 1, 461.32552),
    Sketcher.Constraint("DistanceX", -1, 1, 3, 3, 967.929561),
    Sketcher.Constraint("DistanceY", 0, 2, -1, 1, 961.15809),
])
pad5 = body.newObject("PartDesign::Pad", "Pad004")
pad5.Profile = sketch6
pad5.Length = 30

# Sketch on YZ plane
sketch7 = body.newObject("Sketcher::SketchObject", "Sketch006")
sketch7.AttachmentSupport = (doc.getObject("YZ_Plane"), [""])
sketch7.MapMode = "FlatFace"
sketch7.AttachmentOffset = App.Placement(App.Vector(0, 0, -82.174066), App.Rotation())
sketch7.addGeometry([
    Part.LineSegment(App.Vector(730, -930, 0), App.Vector(754, -982, 0)),  # 0
    Part.LineSegment(App.Vector(754, -982, 0), App.Vector(711, -1003, 0)),  # 1
    Part.LineSegment(App.Vector(711, -1003, 0), App.Vector(686, -950, 0)),  # 2
    Part.LineSegment(App.Vector(686, -950, 0), App.Vector(730, -930, 0)),  # 3
    Part.LineSegment(App.Vector(280, -159, 0), App.Vector(312, -226, 0)),  # 4
    Part.LineSegment(App.Vector(312, -226, 0), App.Vector(258, -252, 0)),  # 5
    Part.LineSegment(App.Vector(258, -252, 0), App.Vector(228, -184, 0)),  # 6
    Part.LineSegment(App.Vector(228, -184, 0), App.Vector(280, -159, 0)),  # 7
], False)
sketch7.addConstraint([
    Sketcher.Constraint("Coincident", 0, 2, 1, 1),
    Sketcher.Constraint("Coincident", 1, 2, 2, 1),
    Sketcher.Constraint("Coincident", 2, 2, 3, 1),
    Sketcher.Constraint("Coincident", 3, 2, 0, 1),
    Sketcher.Constraint("Coincident", 4, 2, 5, 1),
    Sketcher.Constraint("Coincident", 5, 2, 6, 1),
    Sketcher.Constraint("Coincident", 6, 2, 7, 1),
    Sketcher.Constraint("Coincident", 7, 2, 4, 1),
    Sketcher.Constraint("Perpendicular", 0, 1),
    Sketcher.Constraint("Perpendicular", 1, 2),
    Sketcher.Constraint("Perpendicular", 2, 3),
    Sketcher.Constraint("Perpendicular", 3, 4),
    Sketcher.Constraint("Perpendicular", 4, 5),
    Sketcher.Constraint("Parallel", 5, 7),
    Sketcher.Constraint("DistanceX", 1, 2, 0, 2, 43.200898),
    Sketcher.Constraint("DistanceX", 4, 2, 1, 2, 399.1865),
    Sketcher.Constraint("DistanceY", 5, 2, 4, 2, 25.786601),
    Sketcher.Constraint("Distance", 4, 74.496629),
    Sketcher.Constraint("DistanceX", -1, 1, 0, 2, 754.490949),
    Sketcher.Constraint("DistanceY", 0, 2, -1, 1, 982.22609),
    Sketcher.Constraint("DistanceY", 2, 2, -1, 1, 950.23144),
    Sketcher.Constraint("DistanceX", -1, 1, 7, 2, 280.212562),
    Sketcher.Constraint("DistanceY", 3, 2, 4, 2, 703.63453),
    Sketcher.Constraint("DistanceX", 6, 2, 2, 2, 458.780489),
])
pad6 = body.newObject("PartDesign::Pad", "Pad005")
pad6.Profile = sketch7
pad6.Length = 90
pad6.Reversed = True

# Sketch on YZ plane
sketch8 = body.newObject("Sketcher::SketchObject", "Sketch007")
sketch8.AttachmentSupport = (doc.getObject("YZ_Plane"), [""])
sketch8.MapMode = "FlatFace"
sketch8.AttachmentOffset = App.Placement(App.Vector(0, 0, 1234.900343), App.Rotation())
sketch8.addGeometry([
    Part.Circle(App.Vector(282, -205, 0), App.Vector(0, 0, 1), 11),
    Part.Circle(App.Vector(724, -961, 0), App.Vector(0, 0, 1), 11),
], False)
sketch8.addConstraint([
    Sketcher.Constraint("Diameter", 1, 21.499148),
    Sketcher.Constraint("Diameter", 0, 22.180896),
    Sketcher.Constraint("DistanceY", 0, 3, -1, 1, 204.629021),
    Sketcher.Constraint("DistanceY", 1, 3, -1, 1, 961.389589),
    Sketcher.Constraint("DistanceX", 0, 3, 1, 3, 441.873512),
    Sketcher.Constraint("DistanceX", -1, 1, 0, 3, 281.838764),
])
pocket2 = body.newObject("PartDesign::Pocket", "Pocket001")
pocket2.Profile = sketch8
pocket2.Type = "ThroughAll"
pocket2.Midplane = True

doc.recompute()
